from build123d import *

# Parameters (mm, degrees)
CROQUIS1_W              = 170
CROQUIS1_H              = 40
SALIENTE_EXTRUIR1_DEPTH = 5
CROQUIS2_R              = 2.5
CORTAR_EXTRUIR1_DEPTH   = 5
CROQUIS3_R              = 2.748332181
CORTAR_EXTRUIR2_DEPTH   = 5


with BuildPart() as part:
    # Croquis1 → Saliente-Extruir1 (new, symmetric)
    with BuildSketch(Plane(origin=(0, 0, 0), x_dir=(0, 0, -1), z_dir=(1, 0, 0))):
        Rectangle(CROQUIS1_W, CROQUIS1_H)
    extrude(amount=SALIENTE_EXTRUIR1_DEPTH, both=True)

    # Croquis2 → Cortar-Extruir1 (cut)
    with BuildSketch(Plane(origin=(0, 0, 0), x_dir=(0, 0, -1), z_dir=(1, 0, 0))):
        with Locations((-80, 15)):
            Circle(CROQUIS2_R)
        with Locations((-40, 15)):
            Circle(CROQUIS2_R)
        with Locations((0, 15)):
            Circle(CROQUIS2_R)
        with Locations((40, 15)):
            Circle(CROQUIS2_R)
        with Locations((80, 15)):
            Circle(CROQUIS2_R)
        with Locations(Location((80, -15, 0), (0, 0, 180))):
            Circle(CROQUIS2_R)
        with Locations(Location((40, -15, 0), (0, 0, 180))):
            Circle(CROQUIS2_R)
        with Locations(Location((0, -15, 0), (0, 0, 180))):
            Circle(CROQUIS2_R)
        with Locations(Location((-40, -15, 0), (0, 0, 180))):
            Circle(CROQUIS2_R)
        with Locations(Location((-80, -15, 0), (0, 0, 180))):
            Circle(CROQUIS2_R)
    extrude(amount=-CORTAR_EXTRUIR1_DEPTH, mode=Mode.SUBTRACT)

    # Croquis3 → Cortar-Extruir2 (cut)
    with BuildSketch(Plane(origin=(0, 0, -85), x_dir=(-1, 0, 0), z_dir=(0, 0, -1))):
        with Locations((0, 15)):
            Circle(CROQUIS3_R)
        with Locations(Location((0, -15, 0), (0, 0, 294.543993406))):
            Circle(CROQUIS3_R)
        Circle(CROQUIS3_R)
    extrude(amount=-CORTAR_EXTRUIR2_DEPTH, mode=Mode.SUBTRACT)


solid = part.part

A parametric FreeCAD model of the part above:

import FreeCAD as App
import Part
import Sketcher

doc = App.newDocument("Part")
body = doc.addObject("PartDesign::Body", "Body")

sketch1 = body.newObject("Sketcher::SketchObject", "Sketch")
sketch1.AttachmentSupport = (doc.getObject("YZ_Plane"), [""])
sketch1.MapMode = "FlatFace"
sketch1.addGeometry(Part.LineSegment(App.Vector(20, 85, 0), App.Vector(-20, 85, 0)), False)
sketch1.addGeometry(Part.LineSegment(App.Vector(-20, 85, 0), App.Vector(-20, -85, 0)), False)
sketch1.addGeometry(Part.LineSegment(App.Vector(-20, -85, 0), App.Vector(20, -85, 0)), False)
sketch1.addGeometry(Part.LineSegment(App.Vector(20, -85, 0), App.Vector(20, 85, 0)), False)
sketch1.addConstraint(Sketcher.Constraint("Coincident", 0, 2, 1, 1))
sketch1.addConstraint(Sketcher.Constraint("Coincident", 1, 2, 2, 1))
sketch1.addConstraint(Sketcher.Constraint("Coincident", 2, 2, 3, 1))
sketch1.addConstraint(Sketcher.Constraint("Coincident", 3, 2, 0, 1))
sketch1.addConstraint(Sketcher.Constraint("Horizontal", 0))
sketch1.addConstraint(Sketcher.Constraint("Vertical", 1))
sketch1.addConstraint(Sketcher.Constraint("Horizontal", 2))
sketch1.addConstraint(Sketcher.Constraint("Vertical", 3))
sketch1.addConstraint(Sketcher.Constraint("Symmetric", 0, 2, 2, 2, -1, 1))
sketch1.addConstraint(Sketcher.Constraint("DistanceX", 0, 2, 0, 1, 40.0))
sketch1.addConstraint(Sketcher.Constraint("DistanceY", 1, 2, 1, 1, 170.0))
pad1 = body.newObject("PartDesign::Pad", "Pad")
pad1.Profile = sketch1
pad1.Length = 10
pad1.Midplane = True

sketch2 = body.newObject("Sketcher::SketchObject", "Sketch001")
sketch2.AttachmentSupport = (doc.getObject("YZ_Plane"), [""])
sketch2.MapMode = "FlatFace"
sketch2.addGeometry(Part.Circle(App.Vector(15, 80, 0), App.Vector(0, 0, 1), 2.5), False)
sketch2.addGeometry(Part.Circle(App.Vector(15, 40, 0), App.Vector(0, 0, 1), 2.5), False)
sketch2.addGeometry(Part.Circle(App.Vector(15, 0, 0), App.Vector(0, 0, 1), 2.5), False)
sketch2.addGeometry(Part.Circle(App.Vector(15, -40, 0), App.Vector(0, 0, 1), 2.5), False)
sketch2.addGeometry(Part.Circle(App.Vector(15, -80, 0), App.Vector(0, 0, 1), 2.5), False)
sketch2.addGeometry(Part.Circle(App.Vector(-15, -80, 0), App.Vector(0, 0, 1), 2.5), False)
sketch2.addGeometry(Part.Circle(App.Vector(-15, -40, 0), App.Vector(0, 0, 1), 2.5), False)
sketch2.addGeometry(Part.Circle(App.Vector(-15, 0, 0), App.Vector(0, 0, 1), 2.5), False)
sketch2.addGeometry(Part.Circle(App.Vector(-15, 40, 0), App.Vector(0, 0, 1), 2.5), False)
sketch2.addGeometry(Part.Circle(App.Vector(-15, 80, 0), App.Vector(0, 0, 1), 2.5), False)
sketch2.addConstraint(Sketcher.Constraint("Equal", 0, 1))
sketch2.addConstraint(Sketcher.Constraint("Equal", 1, 2))
sketch2.addConstraint(Sketcher.Constraint("Equal", 2, 3))
sketch2.addConstraint(Sketcher.Constraint("Equal", 3, 4))
sketch2.addConstraint(Sketcher.Constraint("Equal", 4, 5))
sketch2.addConstraint(Sketcher.Constraint("Equal", 5, 6))
sketch2.addConstraint(Sketcher.Constraint("Equal", 6, 7))
sketch2.addConstraint(Sketcher.Constraint("Equal", 7, 8))
sketch2.addConstraint(Sketcher.Constraint("Equal", 8, 9))
sketch2.addConstraint(Sketcher.Constraint("Symmetric", 0, 3, 5, 3, -1, 1))
sketch2.addConstraint(Sketcher.Constraint("Symmetric", 1, 3, 6, 3, -1, 1))
sketch2.addConstraint(Sketcher.Constraint("Symmetric", 2, 3, 7, 3, -1, 1))
sketch2.addConstraint(Sketcher.Constraint("Symmetric", 3, 3, 8, 3, -1, 1))
sketch2.addConstraint(Sketcher.Constraint("Symmetric", 4, 3, 9, 3, -1, 1))
sketch2.addConstraint(Sketcher.Constraint("Symmetric", 4, 3, 5, 3, -2))
sketch2.addConstraint(Sketcher.Constraint("Symmetric", 3, 3, 6, 3, -2))
sketch2.addConstraint(Sketcher.Constraint("PointOnObject", 2, 3, -1))
sketch2.addConstraint(Sketcher.Constraint("Vertical", 0, 3, 1, 3))
sketch2.addConstraint(Sketcher.Constraint("Vertical", 1, 3, 2, 3))
sketch2.addConstraint(Sketcher.Constraint("Diameter", 0, 5.0))
sketch2.addConstraint(Sketcher.Constraint("DistanceX", -1, 1, 0, 3, 15.0))
sketch2.addConstraint(Sketcher.Constraint("DistanceY", -1, 1, 0, 3, 80.0))
sketch2.addConstraint(Sketcher.Constraint("DistanceY", -1, 1, 1, 3, 40.0))
pocket1 = body.newObject("PartDesign::Pocket", "Pocket")
pocket1.Profile = sketch2
pocket1.Length = 5

sketch3 = body.newObject("Sketcher::SketchObject", "Sketch002")
sketch3.AttachmentSupport = (doc.getObject("XY_Plane"), [""])
sketch3.MapMode = "FlatFace"
sketch3.AttachmentOffset = App.Placement(App.Vector(0, 0, -85), App.Rotation())
sketch3.addGeometry(Part.Circle(App.Vector(0, 15, 0), App.Vector(0, 0, 1), 2.7), False)
sketch3.addGeometry(Part.Circle(App.Vector(0, -15, 0), App.Vector(0, 0, 1), 2.7), False)
sketch3.addGeometry(Part.Circle(App.Vector(0, 0, 0), App.Vector(0, 0, 1), 2.7), False)
sketch3.addConstraint(Sketcher.Constraint("Coincident", 2, 3, -1, 1))
sketch3.addConstraint(Sketcher.Constraint("Equal", 0, 1))
sketch3.addConstraint(Sketcher.Constraint("Equal", 1, 2))
sketch3.addConstraint(Sketcher.Constraint("Symmetric", 0, 3, 1, 3, -1, 1))
sketch3.addConstraint(Sketcher.Constraint("PointOnObject", 0, 3, -2))
sketch3.addConstraint(Sketcher.Constraint("DistanceY", -1, 1, 0, 3, 15.0))
sketch3.addConstraint(Sketcher.Constraint("Diameter", 0, 5.496664))
pocket2 = body.newObject("PartDesign::Pocket", "Pocket001")
pocket2.Profile = sketch3
pocket2.Length = 5
pocket2.Reversed = True

doc.recompute()
